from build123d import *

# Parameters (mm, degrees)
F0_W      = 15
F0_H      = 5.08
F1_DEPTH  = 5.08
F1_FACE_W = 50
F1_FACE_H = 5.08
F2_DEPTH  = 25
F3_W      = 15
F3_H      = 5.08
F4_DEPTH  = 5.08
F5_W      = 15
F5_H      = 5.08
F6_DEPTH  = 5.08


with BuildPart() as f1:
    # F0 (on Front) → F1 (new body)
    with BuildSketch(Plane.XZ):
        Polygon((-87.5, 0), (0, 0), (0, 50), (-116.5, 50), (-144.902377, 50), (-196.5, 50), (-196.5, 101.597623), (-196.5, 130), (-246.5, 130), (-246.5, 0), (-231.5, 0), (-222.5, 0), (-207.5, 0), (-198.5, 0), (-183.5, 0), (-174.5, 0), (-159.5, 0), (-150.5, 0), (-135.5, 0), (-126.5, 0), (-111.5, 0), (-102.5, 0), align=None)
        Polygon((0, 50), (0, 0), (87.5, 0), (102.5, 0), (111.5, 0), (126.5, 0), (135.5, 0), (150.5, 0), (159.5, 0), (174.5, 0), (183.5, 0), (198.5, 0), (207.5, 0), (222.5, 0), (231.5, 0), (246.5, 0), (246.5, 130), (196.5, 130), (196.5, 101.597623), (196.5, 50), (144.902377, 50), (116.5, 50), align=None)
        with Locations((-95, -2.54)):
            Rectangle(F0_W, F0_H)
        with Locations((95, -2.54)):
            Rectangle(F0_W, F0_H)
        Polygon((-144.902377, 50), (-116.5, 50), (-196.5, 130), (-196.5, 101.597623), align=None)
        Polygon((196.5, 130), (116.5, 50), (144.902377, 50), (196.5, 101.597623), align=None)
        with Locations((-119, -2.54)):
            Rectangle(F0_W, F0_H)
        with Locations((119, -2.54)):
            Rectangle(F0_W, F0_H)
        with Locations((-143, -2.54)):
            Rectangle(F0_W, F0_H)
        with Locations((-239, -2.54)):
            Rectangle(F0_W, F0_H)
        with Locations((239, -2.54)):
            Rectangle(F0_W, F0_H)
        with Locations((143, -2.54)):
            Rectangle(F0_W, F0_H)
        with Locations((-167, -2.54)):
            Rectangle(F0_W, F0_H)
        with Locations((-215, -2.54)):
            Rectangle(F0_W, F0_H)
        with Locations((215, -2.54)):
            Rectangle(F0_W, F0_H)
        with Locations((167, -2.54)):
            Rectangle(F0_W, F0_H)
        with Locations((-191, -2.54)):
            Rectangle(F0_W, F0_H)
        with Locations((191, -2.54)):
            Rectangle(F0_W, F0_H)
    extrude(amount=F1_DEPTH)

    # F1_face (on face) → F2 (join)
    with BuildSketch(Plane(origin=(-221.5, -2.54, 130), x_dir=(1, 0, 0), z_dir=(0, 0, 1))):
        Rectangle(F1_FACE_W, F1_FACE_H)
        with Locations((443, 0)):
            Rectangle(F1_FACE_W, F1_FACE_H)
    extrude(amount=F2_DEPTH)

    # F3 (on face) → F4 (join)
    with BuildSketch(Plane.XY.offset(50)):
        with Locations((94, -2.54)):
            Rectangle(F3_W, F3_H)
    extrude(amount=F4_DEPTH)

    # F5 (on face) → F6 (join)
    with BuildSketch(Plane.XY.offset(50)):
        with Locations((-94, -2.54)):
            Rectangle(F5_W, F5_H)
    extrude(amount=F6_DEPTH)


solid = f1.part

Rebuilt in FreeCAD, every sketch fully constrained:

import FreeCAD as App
import Part
import Sketcher
from FreeCAD import Vector
Q = App.Units.Quantity


def add_polygon(sketch, points):
    """Adds a closed chain of lines whose ends are joined by coincident constraints."""
    first, n = sketch.GeometryCount, len(points)
    for a, b in zip(points, points[1:] + points[:1]):
        sketch.addGeometry(Part.LineSegment(App.Vector(*a, 0), App.Vector(*b, 0)), False)
    for i in range(n):
        sketch.addConstraint(Sketcher.Constraint("Coincident", first + i, 2, first + (i + 1) % n, 1))

doc = App.newDocument("Part")
body = doc.addObject("PartDesign::Body", "Body")

sketch1 = body.newObject("Sketcher::SketchObject", "Sketch")
sketch1.AttachmentSupport = (doc.getObject("XZ_Plane"), [""])
sketch1.MapMode = "FlatFace"
add_polygon(sketch1, [(-196.5, 130), (-246.5, 130), (-246.5, -5.08), (-231.5, -5.08), (-231.5, 0), (-222.5, 0), (-222.5, -5.08), (-207.5, -5.08), (-207.5, 0), (-198.5, 0), (-198.5, -5.08), (-183.5, -5.08), (-183.5, 0), (-174.5, 0), (-174.5, -5.08), (-159.5, -5.08), (-159.5, 0), (-150.5, 0), (-150.5, -5.08), (-135.5, -5.08), (-135.5, 0), (-126.5, 0), (-126.5, -5.08), (-111.5, -5.08), (-111.5, 0), (-102.5, 0), (-102.5, -5.08), (-87.5, -5.08), (-87.5, 0), (87.5, 0), (87.5, -5.08), (102.5, -5.08), (102.5, 0), (111.5, 0), (111.5, -5.08), (126.5, -5.08), (126.5, 0), (135.5, 0), (135.5, -5.08), (150.5, -5.08), (150.5, 0), (159.5, 0), (159.5, -5.08), (174.5, -5.08), (174.5, 0), (183.5, 0), (183.5, -5.08), (198.5, -5.08), (198.5, 0), (207.5, 0), (207.5, -5.08), (222.5, -5.08), (222.5, 0), (231.5, 0), (231.5, -5.08), (246.5, -5.08), (246.5, 130), (196.5, 130), (116.5, 50), (-116.5, 50)])
add_polygon(sketch1, [(-196.5, 50), (-196.5, 101.597623), (-144.902377, 50)])
add_polygon(sketch1, [(196.5, 101.597623), (196.5, 50), (144.902377, 50)])
sketch1.addConstraint([
    Sketcher.Constraint("Horizontal", 0),
    Sketcher.Constraint("Vertical", 1),
    Sketcher.Constraint("Horizontal", 2),
    Sketcher.Constraint("Vertical", 3),
    Sketcher.Constraint("Horizontal", 4),
    Sketcher.Constraint("Vertical", 5),
    Sketcher.Constraint("Horizontal", 6),
    Sketcher.Constraint("Vertical", 7),
    Sketcher.Constraint("Horizontal", 8),
    Sketcher.Constraint("Vertical", 9),
    Sketcher.Constraint("Horizontal", 10),
    Sketcher.Constraint("Vertical", 11),
    Sketcher.Constraint("Horizontal", 12),
    Sketcher.Constraint("Vertical", 13),
    Sketcher.Constraint("Horizontal", 14),
    Sketcher.Constraint("Vertical", 15),
    Sketcher.Constraint("Horizontal", 16),
    Sketcher.Constraint("Vertical", 17),
    Sketcher.Constraint("Horizontal", 18),
    Sketcher.Constraint("Vertical", 19),
    Sketcher.Constraint("Horizontal", 20),
    Sketcher.Constraint("Vertical", 21),
    Sketcher.Constraint("Horizontal", 22),
    Sketcher.Constraint("Vertical", 23),
    Sketcher.Constraint("Horizontal", 24),
    Sketcher.Constraint("Vertical", 25),
    Sketcher.Constraint("Horizontal", 26),
    Sketcher.Constraint("Vertical", 27),
    Sketcher.Constraint("Horizontal", 28),
    Sketcher.Constraint("Vertical", 29),
    Sketcher.Constraint("Horizontal", 30),
    Sketcher.Constraint("Vertical", 31),
    Sketcher.Constraint("Horizontal", 32),
    Sketcher.Constraint("Vertical", 33),
    Sketcher.Constraint("Horizontal", 34),
    Sketcher.Constraint("Vertical", 35),
    Sketcher.Constraint("Horizontal", 36),
    Sketcher.Constraint("Vertical", 37),
    Sketcher.Constraint("Horizontal", 38),
    Sketcher.Constraint("Vertical", 39),
    Sketcher.Constraint("Horizontal", 40),
    Sketcher.Constraint("Vertical", 41),
    Sketcher.Constraint("Horizontal", 42),
    Sketcher.Constraint("Vertical", 43),
    Sketcher.Constraint("Horizontal", 44),
    Sketcher.Constraint("Vertical", 45),
    Sketcher.Constraint("Horizontal", 46),
    Sketcher.Constraint("Vertical", 47),
    Sketcher.Constraint("Horizontal", 48),
    Sketcher.Constraint("Vertical", 49),
    Sketcher.Constraint("Horizontal", 50),
    Sketcher.Constraint("Vertical", 51),
    Sketcher.Constraint("Horizontal", 52),
    Sketcher.Constraint("Vertical", 53),
    Sketcher.Constraint("Horizontal", 54),
    Sketcher.Constraint("Vertical", 55),
    Sketcher.Constraint("Horizontal", 56),
    Sketcher.Constraint("Horizontal", 58),
    Sketcher.Constraint("Vertical", 60),
    Sketcher.Constraint("Horizontal", 62),
    Sketcher.Constraint("Vertical", 63),
    Sketcher.Constraint("Horizontal", 64),
    Sketcher.Constraint("Symmetric", 27, 2, 28, 2, -1, 1),
    Sketcher.Constraint("Symmetric", 24, 2, 31, 2, -1, 1),
    Sketcher.Constraint("Symmetric", 20, 2, 35, 2, -1, 1),
    Sketcher.Constraint("Symmetric", 16, 2, 39, 2, -1, 1),
    Sketcher.Constraint("Symmetric", 12, 2, 43, 2, -1, 1),
    Sketcher.Constraint("Symmetric", 8, 2, 47, 2, -1, 1),
    Sketcher.Constraint("Symmetric", 4, 2, 51, 2, -1, 1),
    Sketcher.Constraint("Symmetric", 23, 2, 32, 2, -2),
    Sketcher.Constraint("Symmetric", 19, 2, 36, 2, -2),
    Sketcher.Constraint("Symmetric", 15, 2, 40, 2, -2),
    Sketcher.Constraint("Symmetric", 11, 2, 44, 2, -2),
    Sketcher.Constraint("Symmetric", 7, 2, 48, 2, -2),
    Sketcher.Constraint("Symmetric", 3, 2, 52, 2, -2),
    Sketcher.Constraint("Symmetric", 1, 2, 54, 2, -2),
    Sketcher.Constraint("Symmetric", 56, 2, 59, 2, -2),
    Sketcher.Constraint("Symmetric", 62, 2, 63, 2, -2),
    Sketcher.Constraint("Perpendicular", 57, 59),
    Sketcher.Constraint("Parallel", 59, 61),
    Sketcher.Constraint("Perpendicular", 61, 65),
    Sketcher.Constraint("Horizontal", 2, 2, 5, 2),
    Sketcher.Constraint("Horizontal", 6, 2, 9, 2),
    Sketcher.Constraint("Horizontal", 10, 2, 13, 2),
    Sketcher.Constraint("Horizontal", 14, 2, 17, 2),
    Sketcher.Constraint("Horizontal", 18, 2, 21, 2),
    Sketcher.Constraint("Horizontal", 22, 2, 25, 2),
    Sketcher.Constraint("Horizontal", 26, 2, 29, 2),
    Sketcher.Constraint("Horizontal", 30, 2, 33, 2),
    Sketcher.Constraint("Horizontal", 34, 2, 37, 2),
    Sketcher.Constraint("Horizontal", 38, 2, 41, 2),
    Sketcher.Constraint("Horizontal", 42, 2, 45, 2),
    Sketcher.Constraint("Horizontal", 46, 2, 49, 2),
    Sketcher.Constraint("Horizontal", 58, 2, 61, 2),
    Sketcher.Constraint("Horizontal", 60, 2, 65, 2),
    Sketcher.Constraint("Vertical", 59, 2, 60, 2),
    Sketcher.Constraint("Equal", 2, 6),
    Sketcher.Constraint("Equal", 4, 8),
    Sketcher.Constraint("Equal", 6, 10),
    Sketcher.Constraint("Equal", 8, 12),
    Sketcher.Constraint("Equal", 10, 14),
    Sketcher.Constraint("Equal", 12, 16),
    Sketcher.Constraint("Equal", 14, 18),
    Sketcher.Constraint("Equal", 16, 20),
    Sketcher.Constraint("Equal", 18, 22),
    Sketcher.Constraint("Equal", 20, 24),
    Sketcher.Constraint("Equal", 22, 26),
    Sketcher.Constraint("Equal", 62, 64),
    Sketcher.Constraint("DistanceX", 0, 2, 0, 1, Q("50 mm")),
    Sketcher.Constraint("DistanceX", 2, 1, 2, 2, Q("15 mm")),
    Sketcher.Constraint("DistanceX", 4, 1, 4, 2, Q("9 mm")),
    Sketcher.Constraint("DistanceX", 28, 1, 28, 2, Q("175 mm")),
    Sketcher.Constraint("DistanceX", 58, 2, 58, 1, Q("233 mm")),
    Sketcher.Constraint("DistanceY", -1, 1, 0, 2, Q("130 mm")),
    Sketcher.Constraint("DistanceY", 1, 2, 1, 1, Q("135.08 mm")),
    Sketcher.Constraint("Distance", 61, Q("72.970058 mm")),
])
pad1 = body.newObject("PartDesign::Pad", "Pad")
pad1.Profile = sketch1
pad1.Length = 5.08

sketch2 = body.newObject("Sketcher::SketchObject", "Sketch001")
sketch2.AttachmentSupport = (doc.getObject("XY_Plane"), [""])
sketch2.MapMode = "FlatFace"
sketch2.AttachmentOffset = App.Placement(Vector(0, 0, 130), App.Rotation())
add_polygon(sketch2, [(-246.5, 0), (-246.5, -5.08), (-196.5, -5.08), (-196.5, 0)])
add_polygon(sketch2, [(196.5, 0), (196.5, -5.08), (246.5, -5.08), (246.5, 0)])
sketch2.addConstraint([
    Sketcher.Constraint("Vertical", 0),
    Sketcher.Constraint("Horizontal", 1),
    Sketcher.Constraint("Vertical", 2),
    Sketcher.Constraint("Horizontal", 3),
    Sketcher.Constraint("Vertical", 4),
    Sketcher.Constraint("Horizontal", 5),
    Sketcher.Constraint("Vertical", 6),
    Sketcher.Constraint("Horizontal", 7),
    Sketcher.Constraint("Symmetric", 3, 2, 6, 2, -1, 1),
    Sketcher.Constraint("Symmetric", 1, 2, 4, 2, -2),
    Sketcher.Constraint("PointOnObject", 2, 2, -1),
    Sketcher.Constraint("DistanceX", 1, 1, 1, 2, Q("50 mm")),
    Sketcher.Constraint("DistanceX", 1, 2, 4, 2, Q("393 mm")),
    Sketcher.Constraint("DistanceY", 0, 2, 0, 1, Q("5.08 mm")),
])
pad2 = body.newObject("PartDesign::Pad", "Pad001")
pad2.Profile = sketch2
pad2.Length = 25

sketch3 = body.newObject("Sketcher::SketchObject", "Sketch002")
sketch3.AttachmentSupport = (doc.getObject("XY_Plane"), [""])
sketch3.MapMode = "FlatFace"
sketch3.AttachmentOffset = App.Placement(Vector(0, 0, 50), App.Rotation())
add_polygon(sketch3, [(86.5, 0), (86.5, -5.08), (101.5, -5.08), (101.5, 0)])
sketch3.addConstraint([
    Sketcher.Constraint("Vertical", 0),
    Sketcher.Constraint("Horizontal", 1),
    Sketcher.Constraint("Vertical", 2),
    Sketcher.Constraint("Horizontal", 3),
    Sketcher.Constraint("PointOnObject", 2, 2, -1),
    Sketcher.Constraint("DistanceX", 1, 1, 1, 2, Q("15 mm")),
    Sketcher.Constraint("DistanceY", 0, 2, 0, 1, Q("5.08 mm")),
    Sketcher.Constraint("DistanceX", -1, 1, 0, 2, Q("86.5 mm")),
])
pad3 = body.newObject("PartDesign::Pad", "Pad002")
pad3.Profile = sketch3
pad3.Length = 5.08

sketch4 = body.newObject("Sketcher::SketchObject", "Sketch003")
sketch4.AttachmentSupport = (doc.getObject("XY_Plane"), [""])
sketch4.MapMode = "FlatFace"
sketch4.AttachmentOffset = App.Placement(Vector(0, 0, 50), App.Rotation())
add_polygon(sketch4, [(-101.5, 0), (-101.5, -5.08), (-86.5, -5.08), (-86.5, 0)])
sketch4.addConstraint([
    Sketcher.Constraint("Vertical", 0),
    Sketcher.Constraint("Horizontal", 1),
    Sketcher.Constraint("Vertical", 2),
    Sketcher.Constraint("Horizontal", 3),
    Sketcher.Constraint("PointOnObject", 2, 2, -1),
    Sketcher.Constraint("DistanceX", 1, 1, 1, 2, Q("15 mm")),
    Sketcher.Constraint("DistanceY", 0, 2, 0, 1, Q("5.08 mm")),
    Sketcher.Constraint("DistanceX", 0, 2, -1, 1, Q("101.5 mm")),
])
pad4 = body.newObject("PartDesign::Pad", "Pad003")
pad4.Profile = sketch4
pad4.Length = 5.08

doc.recompute()
